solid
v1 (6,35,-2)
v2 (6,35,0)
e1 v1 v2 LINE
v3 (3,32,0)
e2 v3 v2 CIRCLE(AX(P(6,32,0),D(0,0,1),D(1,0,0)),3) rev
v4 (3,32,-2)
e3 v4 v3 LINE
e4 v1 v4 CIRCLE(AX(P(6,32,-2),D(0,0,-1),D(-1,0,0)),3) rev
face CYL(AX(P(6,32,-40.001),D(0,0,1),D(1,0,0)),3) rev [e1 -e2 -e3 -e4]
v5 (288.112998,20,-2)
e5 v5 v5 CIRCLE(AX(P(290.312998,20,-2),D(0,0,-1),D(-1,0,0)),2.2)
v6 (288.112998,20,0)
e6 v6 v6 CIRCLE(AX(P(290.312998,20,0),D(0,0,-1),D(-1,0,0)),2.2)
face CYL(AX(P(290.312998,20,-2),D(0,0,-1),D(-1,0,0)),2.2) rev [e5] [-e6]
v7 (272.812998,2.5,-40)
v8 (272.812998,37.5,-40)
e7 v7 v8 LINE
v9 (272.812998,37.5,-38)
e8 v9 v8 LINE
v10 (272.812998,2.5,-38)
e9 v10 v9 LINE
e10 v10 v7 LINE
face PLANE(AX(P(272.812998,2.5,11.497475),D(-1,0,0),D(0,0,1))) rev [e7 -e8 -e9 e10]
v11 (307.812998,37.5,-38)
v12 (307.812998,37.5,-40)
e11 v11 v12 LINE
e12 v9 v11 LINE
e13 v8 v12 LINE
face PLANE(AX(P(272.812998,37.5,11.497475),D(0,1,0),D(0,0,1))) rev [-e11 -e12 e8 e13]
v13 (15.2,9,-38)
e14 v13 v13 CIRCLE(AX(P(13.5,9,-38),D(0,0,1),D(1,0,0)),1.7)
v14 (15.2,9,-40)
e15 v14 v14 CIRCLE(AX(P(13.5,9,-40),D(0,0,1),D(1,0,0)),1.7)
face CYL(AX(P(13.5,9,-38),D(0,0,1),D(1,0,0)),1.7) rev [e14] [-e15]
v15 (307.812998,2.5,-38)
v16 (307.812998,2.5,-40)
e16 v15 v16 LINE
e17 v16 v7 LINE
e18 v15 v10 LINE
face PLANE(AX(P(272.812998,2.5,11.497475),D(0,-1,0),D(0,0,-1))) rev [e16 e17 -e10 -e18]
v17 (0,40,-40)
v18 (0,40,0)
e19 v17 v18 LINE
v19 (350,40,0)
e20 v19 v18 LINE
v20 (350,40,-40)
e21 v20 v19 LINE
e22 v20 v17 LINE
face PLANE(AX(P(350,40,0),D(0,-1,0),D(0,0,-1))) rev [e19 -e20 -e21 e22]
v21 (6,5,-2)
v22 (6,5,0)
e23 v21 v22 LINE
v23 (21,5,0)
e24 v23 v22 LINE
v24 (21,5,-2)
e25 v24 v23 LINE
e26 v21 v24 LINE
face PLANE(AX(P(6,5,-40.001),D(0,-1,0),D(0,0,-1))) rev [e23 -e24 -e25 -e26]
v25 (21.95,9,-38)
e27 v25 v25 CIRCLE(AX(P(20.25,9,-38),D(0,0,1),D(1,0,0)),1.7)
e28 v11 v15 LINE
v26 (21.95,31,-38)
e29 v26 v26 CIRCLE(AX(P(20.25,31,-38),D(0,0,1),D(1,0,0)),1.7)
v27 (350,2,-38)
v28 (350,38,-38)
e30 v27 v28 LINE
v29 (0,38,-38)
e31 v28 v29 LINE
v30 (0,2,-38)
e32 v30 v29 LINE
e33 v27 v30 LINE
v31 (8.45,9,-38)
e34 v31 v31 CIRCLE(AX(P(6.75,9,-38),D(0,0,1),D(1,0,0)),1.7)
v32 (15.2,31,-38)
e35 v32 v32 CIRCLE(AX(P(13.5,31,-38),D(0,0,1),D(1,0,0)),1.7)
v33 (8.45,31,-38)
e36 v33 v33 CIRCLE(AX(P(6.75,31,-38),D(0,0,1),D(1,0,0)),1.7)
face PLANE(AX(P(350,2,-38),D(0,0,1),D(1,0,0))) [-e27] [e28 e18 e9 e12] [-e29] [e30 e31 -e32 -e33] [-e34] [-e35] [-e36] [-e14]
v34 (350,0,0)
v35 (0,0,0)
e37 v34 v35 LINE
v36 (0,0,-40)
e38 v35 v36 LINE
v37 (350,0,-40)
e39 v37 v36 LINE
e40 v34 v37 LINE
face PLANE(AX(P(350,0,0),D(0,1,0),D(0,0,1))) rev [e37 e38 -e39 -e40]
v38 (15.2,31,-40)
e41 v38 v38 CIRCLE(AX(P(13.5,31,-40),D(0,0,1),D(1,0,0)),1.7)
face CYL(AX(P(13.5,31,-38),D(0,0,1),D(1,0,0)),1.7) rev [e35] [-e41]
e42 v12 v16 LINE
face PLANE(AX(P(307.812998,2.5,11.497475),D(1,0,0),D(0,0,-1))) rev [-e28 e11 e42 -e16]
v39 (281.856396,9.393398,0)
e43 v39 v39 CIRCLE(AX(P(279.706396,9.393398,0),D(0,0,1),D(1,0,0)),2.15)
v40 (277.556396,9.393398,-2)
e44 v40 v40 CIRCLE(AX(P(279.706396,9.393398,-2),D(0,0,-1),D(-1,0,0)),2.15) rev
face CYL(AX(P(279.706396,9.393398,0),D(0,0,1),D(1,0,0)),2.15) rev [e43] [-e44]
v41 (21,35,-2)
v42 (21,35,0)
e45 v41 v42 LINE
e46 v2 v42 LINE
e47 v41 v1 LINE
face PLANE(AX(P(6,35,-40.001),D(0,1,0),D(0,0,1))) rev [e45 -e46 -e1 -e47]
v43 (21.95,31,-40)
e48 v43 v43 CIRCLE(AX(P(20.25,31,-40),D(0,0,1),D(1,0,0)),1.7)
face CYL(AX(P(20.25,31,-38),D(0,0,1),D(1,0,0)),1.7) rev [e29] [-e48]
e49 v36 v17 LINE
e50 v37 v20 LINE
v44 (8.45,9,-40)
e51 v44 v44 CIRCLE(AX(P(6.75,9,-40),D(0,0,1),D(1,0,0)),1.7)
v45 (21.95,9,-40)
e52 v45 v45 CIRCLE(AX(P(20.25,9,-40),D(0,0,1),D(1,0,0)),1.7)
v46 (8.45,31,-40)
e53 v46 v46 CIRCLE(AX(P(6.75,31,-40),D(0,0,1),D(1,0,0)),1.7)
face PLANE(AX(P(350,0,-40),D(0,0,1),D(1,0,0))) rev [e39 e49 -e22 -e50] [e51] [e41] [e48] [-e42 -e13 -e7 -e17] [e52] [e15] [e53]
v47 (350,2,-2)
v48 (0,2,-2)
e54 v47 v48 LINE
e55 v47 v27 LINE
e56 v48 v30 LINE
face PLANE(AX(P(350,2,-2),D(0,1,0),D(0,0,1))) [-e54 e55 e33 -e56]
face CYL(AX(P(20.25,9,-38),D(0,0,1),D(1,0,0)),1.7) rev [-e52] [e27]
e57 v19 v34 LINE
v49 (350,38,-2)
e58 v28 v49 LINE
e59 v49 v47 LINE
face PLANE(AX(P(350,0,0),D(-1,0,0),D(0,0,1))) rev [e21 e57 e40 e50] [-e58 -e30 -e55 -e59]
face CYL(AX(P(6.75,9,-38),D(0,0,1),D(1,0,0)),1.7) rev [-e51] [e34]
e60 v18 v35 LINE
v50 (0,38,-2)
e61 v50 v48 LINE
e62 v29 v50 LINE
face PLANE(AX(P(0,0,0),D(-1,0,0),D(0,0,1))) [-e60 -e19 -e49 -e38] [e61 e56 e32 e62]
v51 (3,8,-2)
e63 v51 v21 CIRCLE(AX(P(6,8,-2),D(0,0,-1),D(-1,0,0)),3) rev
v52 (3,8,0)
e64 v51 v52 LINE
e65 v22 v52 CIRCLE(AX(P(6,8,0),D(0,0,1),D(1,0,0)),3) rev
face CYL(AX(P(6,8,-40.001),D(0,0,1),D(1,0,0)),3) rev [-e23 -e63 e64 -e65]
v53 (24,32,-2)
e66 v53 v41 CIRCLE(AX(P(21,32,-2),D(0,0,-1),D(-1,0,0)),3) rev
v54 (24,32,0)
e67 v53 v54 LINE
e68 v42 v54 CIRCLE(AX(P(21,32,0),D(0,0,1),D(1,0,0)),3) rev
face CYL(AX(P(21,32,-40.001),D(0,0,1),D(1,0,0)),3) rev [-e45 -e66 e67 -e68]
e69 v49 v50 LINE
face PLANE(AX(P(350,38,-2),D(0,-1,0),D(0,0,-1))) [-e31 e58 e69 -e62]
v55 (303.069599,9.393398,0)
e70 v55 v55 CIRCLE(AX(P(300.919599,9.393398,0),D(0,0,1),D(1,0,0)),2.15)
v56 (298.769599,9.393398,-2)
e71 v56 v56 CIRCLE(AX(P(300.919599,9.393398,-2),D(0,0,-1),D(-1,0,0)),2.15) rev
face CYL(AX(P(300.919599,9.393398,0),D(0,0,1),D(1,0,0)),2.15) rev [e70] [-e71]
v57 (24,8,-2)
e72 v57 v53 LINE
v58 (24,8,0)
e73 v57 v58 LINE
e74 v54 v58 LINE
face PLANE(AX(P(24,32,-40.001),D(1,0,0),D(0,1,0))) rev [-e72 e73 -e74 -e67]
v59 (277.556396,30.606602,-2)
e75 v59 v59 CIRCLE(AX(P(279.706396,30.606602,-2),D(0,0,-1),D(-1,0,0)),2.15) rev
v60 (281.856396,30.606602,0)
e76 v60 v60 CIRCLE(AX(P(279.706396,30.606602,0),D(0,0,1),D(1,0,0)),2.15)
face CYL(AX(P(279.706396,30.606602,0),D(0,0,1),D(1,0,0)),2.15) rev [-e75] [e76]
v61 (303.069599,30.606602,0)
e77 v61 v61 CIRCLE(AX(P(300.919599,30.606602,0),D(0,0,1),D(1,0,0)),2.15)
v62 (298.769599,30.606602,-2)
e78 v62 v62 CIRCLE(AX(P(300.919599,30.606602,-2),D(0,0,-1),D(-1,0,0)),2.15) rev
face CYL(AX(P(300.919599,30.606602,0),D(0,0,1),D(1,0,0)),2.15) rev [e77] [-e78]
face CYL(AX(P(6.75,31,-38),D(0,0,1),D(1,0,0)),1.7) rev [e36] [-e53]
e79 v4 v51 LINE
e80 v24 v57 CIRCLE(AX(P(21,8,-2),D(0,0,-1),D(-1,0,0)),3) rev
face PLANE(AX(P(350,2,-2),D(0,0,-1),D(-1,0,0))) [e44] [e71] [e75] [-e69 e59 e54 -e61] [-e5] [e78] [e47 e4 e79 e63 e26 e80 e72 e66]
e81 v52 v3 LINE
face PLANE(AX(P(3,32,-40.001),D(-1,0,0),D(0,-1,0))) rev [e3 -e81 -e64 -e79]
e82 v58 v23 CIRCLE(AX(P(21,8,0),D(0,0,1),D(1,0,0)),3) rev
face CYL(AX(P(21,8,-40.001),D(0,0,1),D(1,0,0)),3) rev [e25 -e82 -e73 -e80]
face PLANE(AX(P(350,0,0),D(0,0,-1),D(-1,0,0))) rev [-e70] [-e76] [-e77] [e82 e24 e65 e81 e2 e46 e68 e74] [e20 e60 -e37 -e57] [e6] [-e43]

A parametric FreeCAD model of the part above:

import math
import FreeCAD as App
import Part
import Sketcher

V = App.Vector
Q = App.Units.Quantity


def add_polygon(sketch, points):
    """Adds a closed chain of lines whose ends are joined by coincident constraints."""
    first, n = sketch.GeometryCount, len(points)
    for a, b in zip(points, points[1:] + points[:1]):
        sketch.addGeometry(Part.LineSegment(App.Vector(*a, 0), App.Vector(*b, 0)), False)
    for i in range(n):
        sketch.addConstraint(Sketcher.Constraint("Coincident", first + i, 2, first + (i + 1) % n, 1))

doc = App.newDocument("Part")
params = doc.addObject("Spreadsheet::Sheet", "Params")
for row, (alias, value) in enumerate([
    ("sketch1_width", "40 mm"),
    ("sketch1_width2", "36 mm"),
    ("pad1_length", "350 mm"),
    ("sketch2_diameter", "4.3 mm"),
    ("hole_diameter", "4.3 mm"),
    ("hole_depth", "2 mm"),
    ("sketch3_width", "35 mm"),
    ("pocket1_length", "2 mm"),
    ("sketch4_diameter", "4.4 mm"),
    ("hole2_diameter", "4.4 mm"),
    ("sketch5_diameter", "3.4 mm"),
    ("hole3_diameter", "3.4 mm"),
    ("hole3_depth", "20 mm"),
    ("sketch6_radius", "3 mm"),
    ("sketch6_width", "15 mm"),
    ("sketch6_height", "24 mm"),
    ("sketch7_radius", "3 mm"),
    ("sketch7_width", "15 mm"),
    ("sketch7_height", "24 mm"),
    ("pocket3_length", "355.541958 mm"),
], start=1):
    params.set(f"A{row}", alias)
    params.set(f"B{row}", "=" + value)
    params.setAlias(f"B{row}", alias)

body = doc.addObject("PartDesign::Body", "Body")

# Sketch on YZ plane
sketch1 = body.newObject("Sketcher::SketchObject", "Sketch")
sketch1.AttachmentSupport = (doc.getObject("YZ_Plane"), [""])
sketch1.MapMode = "FlatFace"
add_polygon(sketch1, [(40, 0), (0, 0), (0, -40), (40, -40)])  # lines 0-3
add_polygon(sketch1, [(2, -38), (2, -2), (38, -2), (38, -38)])  # lines 4-7
sketch1.addConstraint(Sketcher.Constraint("Horizontal", 0))
sketch1.addConstraint(Sketcher.Constraint("Vertical", 1))
sketch1.addConstraint(Sketcher.Constraint("Horizontal", 2))
sketch1.addConstraint(Sketcher.Constraint("Vertical", 3))
sketch1.addConstraint(Sketcher.Constraint("Vertical", 4))
sketch1.addConstraint(Sketcher.Constraint("Horizontal", 5))
sketch1.addConstraint(Sketcher.Constraint("Vertical", 6))
sketch1.addConstraint(Sketcher.Constraint("Horizontal", 7))
sketch1.addConstraint(Sketcher.Constraint("Coincident", 0, 2, -1, 1))
sketch1.addConstraint(Sketcher.Constraint("Equal", 2, 1))
sketch1.addConstraint(Sketcher.Constraint("Equal", 7, 4))
sketch1.addConstraint(Sketcher.Constraint("DistanceX", 0, 2, 0, 1, Q("40 mm")))
sketch1.addConstraint(Sketcher.Constraint("DistanceX", 5, 1, 5, 2, Q("36 mm")))
sketch1.addConstraint(Sketcher.Constraint("DistanceX", -1, 1, 4, 2, Q("2 mm")))
sketch1.addConstraint(Sketcher.Constraint("DistanceY", 4, 2, -1, 1, Q("2 mm")))
sketch1.setExpression("Constraints[19]", "Params.sketch1_width")
sketch1.setExpression("Constraints[20]", "Params.sketch1_width2")
pad1 = body.newObject("PartDesign::Pad", "Pad")
pad1.Profile = sketch1
pad1.setExpression("Length", "Params.pad1_length")

# Sketch on XY plane
sketch2 = body.newObject("Sketcher::SketchObject", "Sketch001")
sketch2.AttachmentSupport = (doc.getObject("XY_Plane"), [""])
sketch2.MapMode = "FlatFace"
sketch2.addGeometry(Part.Circle(V(279.7, 30.6, 0), V(0, 0, 1), 2.1), False)
sketch2.addGeometry(Part.Circle(V(300.9, 30.6, 0), V(0, 0, 1), 2.1), False)
sketch2.addGeometry(Part.Circle(V(300.9, 9.4, 0), V(0, 0, 1), 2.1), False)
sketch2.addGeometry(Part.Circle(V(279.7, 9.4, 0), V(0, 0, 1), 2.1), False)
sketch2.addConstraint(Sketcher.Constraint("Equal", 0, 1))
sketch2.addConstraint(Sketcher.Constraint("Equal", 1, 2))
sketch2.addConstraint(Sketcher.Constraint("Equal", 2, 3))
sketch2.addConstraint(Sketcher.Constraint("Horizontal", 0, 3, 1, 3))
sketch2.addConstraint(Sketcher.Constraint("Horizontal", 2, 3, 3, 3))
sketch2.addConstraint(Sketcher.Constraint("Vertical", 1, 3, 2, 3))
sketch2.addConstraint(Sketcher.Constraint("Vertical", 0, 3, 3, 3))
sketch2.addConstraint(Sketcher.Constraint("Diameter", 0, Q("4.3 mm")))
sketch2.addConstraint(Sketcher.Constraint("DistanceY", -1, 1, 0, 3, Q("30.606602 mm")))
sketch2.addConstraint(Sketcher.Constraint("DistanceX", -1, 1, 1, 3, Q("300.919599 mm")))
sketch2.addConstraint(Sketcher.Constraint("DistanceY", -1, 1, 2, 3, Q("9.393398 mm")))
sketch2.addConstraint(Sketcher.Constraint("DistanceX", -1, 1, 0, 3, Q("279.706396 mm")))
sketch2.setExpression("Constraints[7]", "Params.sketch2_diameter")
doc.recompute()
hole = body.newObject("PartDesign::Hole", "Hole")
hole.Profile = sketch2
hole.ThreadType = "None"
hole.setExpression("Diameter", "Params.hole_diameter")
hole.DepthType = "Dimension"
hole.setExpression("Depth", "Params.hole_depth")
hole.DrillPoint = "Angled"
hole.DrillPointAngle = 118

# Sketch on XY plane
sketch3 = body.newObject("Sketcher::SketchObject", "Sketch002")
sketch3.AttachmentSupport = (doc.getObject("XY_Plane"), [""])
sketch3.MapMode = "FlatFace"
sketch3.AttachmentOffset = App.Placement(V(0, 0, -40), App.Rotation())
add_polygon(sketch3, [(308, 38), (308, 2), (273, 2), (273, 38)])  # lines 0-3
sketch3.addConstraint(Sketcher.Constraint("Vertical", 0))
sketch3.addConstraint(Sketcher.Constraint("Horizontal", 1))
sketch3.addConstraint(Sketcher.Constraint("Vertical", 2))
sketch3.addConstraint(Sketcher.Constraint("Horizontal", 3))
sketch3.addConstraint(Sketcher.Constraint("Equal", 3, 0))
sketch3.addConstraint(Sketcher.Constraint("DistanceX", 1, 2, 1, 1, Q("35 mm")))
sketch3.addConstraint(Sketcher.Constraint("DistanceY", -1, 1, 0, 2, Q("2.5 mm")))
sketch3.addConstraint(Sketcher.Constraint("DistanceX", -1, 1, 0, 2, Q("307.812998 mm")))
sketch3.setExpression("Constraints[9]", "Params.sketch3_width")
pocket1 = body.newObject("PartDesign::Pocket", "Pocket")
pocket1.Profile = sketch3
pocket1.setExpression("Length", "Params.pocket1_length")
pocket1.Reversed = True

# Sketch on XY plane
sketch4 = body.newObject("Sketcher::SketchObject", "Sketch003")
sketch4.AttachmentSupport = (doc.getObject("XY_Plane"), [""])
sketch4.MapMode = "FlatFace"
sketch4.AttachmentOffset = App.Placement(V(0, 0, -2), App.Rotation())
sketch4.addGeometry(Part.Circle(V(290.3, 20, 0), V(0, 0, 1), 2.2), False)
sketch4.addConstraint(Sketcher.Constraint("Diameter", 0, Q("4.4 mm")))
sketch4.addConstraint(Sketcher.Constraint("DistanceY", -1, 1, 0, 3, Q("20 mm")))
sketch4.addConstraint(Sketcher.Constraint("DistanceX", -1, 1, 0, 3, Q("290.312998 mm")))
sketch4.setExpression("Constraints[0]", "Params.sketch4_diameter")
doc.recompute()
hole2 = body.newObject("PartDesign::Hole", "Hole001")
hole2.Profile = sketch4
hole2.ThreadType = "None"
hole2.setExpression("Diameter", "Params.hole2_diameter")
hole2.DepthType = "ThroughAll"
hole2.Reversed = True

# Sketch on XY plane
sketch5 = body.newObject("Sketcher::SketchObject", "Sketch004")
sketch5.AttachmentSupport = (doc.getObject("XY_Plane"), [""])
sketch5.MapMode = "FlatFace"
sketch5.AttachmentOffset = App.Placement(V(0, 0, -38), App.Rotation())
sketch5.addGeometry(Part.Circle(V(6.8, 9, 0), V(0, 0, 1), 1.7), False)
sketch5.addGeometry(Part.Circle(V(20.2, 31, 0), V(0, 0, 1), 1.7), False)
sketch5.addGeometry(Part.Circle(V(13.5, 31, 0), V(0, 0, 1), 1.7), False)
sketch5.addGeometry(Part.Circle(V(6.8, 31, 0), V(0, 0, 1), 1.7), False)
sketch5.addGeometry(Part.Circle(V(20.2, 9, 0), V(0, 0, 1), 1.7), False)
sketch5.addGeometry(Part.Circle(V(13.5, 9, 0), V(0, 0, 1), 1.7), False)
sketch5.addConstraint(Sketcher.Constraint("Equal", 0, 1))
sketch5.addConstraint(Sketcher.Constraint("Equal", 1, 2))
sketch5.addConstraint(Sketcher.Constraint("Equal", 2, 3))
sketch5.addConstraint(Sketcher.Constraint("Equal", 3, 4))
sketch5.addConstraint(Sketcher.Constraint("Equal", 4, 5))
sketch5.addConstraint(Sketcher.Constraint("Horizontal", 1, 3, 2, 3))
sketch5.addConstraint(Sketcher.Constraint("Horizontal", 2, 3, 3, 3))
sketch5.addConstraint(Sketcher.Constraint("Horizontal", 0, 3, 4, 3))
sketch5.addConstraint(Sketcher.Constraint("Horizontal", 4, 3, 5, 3))
sketch5.addConstraint(Sketcher.Constraint("Vertical", 0, 3, 3, 3))
sketch5.addConstraint(Sketcher.Constraint("Vertical", 1, 3, 4, 3))
sketch5.addConstraint(Sketcher.Constraint("Vertical", 2, 3, 5, 3))
sketch5.addConstraint(Sketcher.Constraint("Diameter", 0, Q("3.4 mm")))
sketch5.addConstraint(Sketcher.Constraint("DistanceY", -1, 1, 0, 3, Q("9 mm")))
sketch5.addConstraint(Sketcher.Constraint("DistanceY", -1, 1, 1, 3, Q("31 mm")))
sketch5.addConstraint(Sketcher.Constraint("DistanceX", -1, 1, 2, 3, Q("13.5 mm")))
sketch5.addConstraint(Sketcher.Constraint("DistanceX", 0, 3, 1, 3, Q("13.5 mm")))
sketch5.addConstraint(Sketcher.Constraint("DistanceX", -1, 1, 0, 3, Q("6.75 mm")))
sketch5.setExpression("Constraints[12]", "Params.sketch5_diameter")
doc.recompute()
hole3 = body.newObject("PartDesign::Hole", "Hole002")
hole3.Profile = sketch5
hole3.ThreadType = "None"
hole3.setExpression("Diameter", "Params.hole3_diameter")
hole3.DepthType = "Dimension"
hole3.setExpression("Depth", "Params.hole3_depth")
hole3.DrillPoint = "Angled"
hole3.DrillPointAngle = 118

# Sketch on XY plane
sketch6 = body.newObject("Sketcher::SketchObject", "Sketch005")
sketch6.AttachmentSupport = (doc.getObject("XY_Plane"), [""])
sketch6.MapMode = "FlatFace"
sketch6.addGeometry(Part.LineSegment(V(21, 35, 0), V(6, 35, 0)), False)
sketch6.addGeometry(Part.ArcOfCircle(Part.Circle(V(6, 32, 0), V(0, 0, 1), 3), math.radians(90), math.radians(180)), False)
sketch6.addGeometry(Part.LineSegment(V(3, 32, 0), V(3, 8, 0)), False)
sketch6.addGeometry(Part.ArcOfCircle(Part.Circle(V(6, 8, 0), V(0, 0, 1), 3), math.radians(180), math.radians(270)), False)
sketch6.addGeometry(Part.LineSegment(V(6, 5, 0), V(21, 5, 0)), False)
sketch6.addGeometry(Part.ArcOfCircle(Part.Circle(V(21, 8, 0), V(0, 0, 1), 3), math.radians(-90), math.radians(0)), False)
sketch6.addGeometry(Part.LineSegment(V(24, 8, 0), V(24, 32, 0)), False)
sketch6.addGeometry(Part.ArcOfCircle(Part.Circle(V(21, 32, 0), V(0, 0, 1), 3), math.radians(0), math.radians(90)), False)
sketch6.addConstraint(Sketcher.Constraint("Tangent", 0, 2, 1, 1))
sketch6.addConstraint(Sketcher.Constraint("Tangent", 1, 2, 2, 1))
sketch6.addConstraint(Sketcher.Constraint("Tangent", 2, 2, 3, 1))
sketch6.addConstraint(Sketcher.Constraint("Tangent", 3, 2, 4, 1))
sketch6.addConstraint(Sketcher.Constraint("Tangent", 4, 2, 5, 1))
sketch6.addConstraint(Sketcher.Constraint("Tangent", 5, 2, 6, 1))
sketch6.addConstraint(Sketcher.Constraint("Tangent", 6, 2, 7, 1))
sketch6.addConstraint(Sketcher.Constraint("Tangent", 7, 2, 0, 1))
sketch6.addConstraint(Sketcher.Constraint("Horizontal", 0))
sketch6.addConstraint(Sketcher.Constraint("Vertical", 2))
sketch6.addConstraint(Sketcher.Constraint("Horizontal", 4))
sketch6.addConstraint(Sketcher.Constraint("Vertical", 6))
sketch6.addConstraint(Sketcher.Constraint("Equal", 1, 3))
sketch6.addConstraint(Sketcher.Constraint("Equal", 3, 5))
sketch6.addConstraint(Sketcher.Constraint("Equal", 5, 7))
sketch6.addConstraint(Sketcher.Constraint("Radius", 1, Q("3 mm")))
sketch6.addConstraint(Sketcher.Constraint("DistanceX", 0, 2, 0, 1, Q("15 mm")))
sketch6.addConstraint(Sketcher.Constraint("DistanceY", 2, 2, 2, 1, Q("24 mm")))
sketch6.addConstraint(Sketcher.Constraint("DistanceX", -1, 1, 1, 3, Q("6 mm")))
sketch6.addConstraint(Sketcher.Constraint("DistanceY", -1, 1, 1, 3, Q("32 mm")))
sketch6.setExpression("Constraints[15]", "Params.sketch6_radius")
sketch6.setExpression("Constraints[16]", "Params.sketch6_width")
sketch6.setExpression("Constraints[17]", "Params.sketch6_height")
pocket2 = body.newObject("PartDesign::Pocket", "Pocket001")
pocket2.Profile = sketch6
pocket2.Type = "UpToFirst"

# Sketch on XY plane
sketch7 = body.newObject("Sketcher::SketchObject", "Sketch006")
sketch7.AttachmentSupport = (doc.getObject("XY_Plane"), [""])
sketch7.MapMode = "FlatFace"
sketch7.addGeometry(Part.LineSegment(V(21, 35, 0), V(6, 35, 0)), False)
sketch7.addGeometry(Part.ArcOfCircle(Part.Circle(V(6, 32, 0), V(0, 0, 1), 3), math.radians(90), math.radians(180)), False)
sketch7.addGeometry(Part.LineSegment(V(3, 32, 0), V(3, 8, 0)), False)
sketch7.addGeometry(Part.ArcOfCircle(Part.Circle(V(6, 8, 0), V(0, 0, 1), 3), math.radians(180), math.radians(270)), False)
sketch7.addGeometry(Part.LineSegment(V(6, 5, 0), V(21, 5, 0)), False)
sketch7.addGeometry(Part.ArcOfCircle(Part.Circle(V(21, 8, 0), V(0, 0, 1), 3), math.radians(-90), math.radians(0)), False)
sketch7.addGeometry(Part.LineSegment(V(24, 8, 0), V(24, 32, 0)), False)
sketch7.addGeometry(Part.ArcOfCircle(Part.Circle(V(21, 32, 0), V(0, 0, 1), 3), math.radians(0), math.radians(90)), False)
sketch7.addConstraint(Sketcher.Constraint("Tangent", 0, 2, 1, 1))
sketch7.addConstraint(Sketcher.Constraint("Tangent", 1, 2, 2, 1))
sketch7.addConstraint(Sketcher.Constraint("Tangent", 2, 2, 3, 1))
sketch7.addConstraint(Sketcher.Constraint("Tangent", 3, 2, 4, 1))
sketch7.addConstraint(Sketcher.Constraint("Tangent", 4, 2, 5, 1))
sketch7.addConstraint(Sketcher.Constraint("Tangent", 5, 2, 6, 1))
sketch7.addConstraint(Sketcher.Constraint("Tangent", 6, 2, 7, 1))
sketch7.addConstraint(Sketcher.Constraint("Tangent", 7, 2, 0, 1))
sketch7.addConstraint(Sketcher.Constraint("Horizontal", 0))
sketch7.addConstraint(Sketcher.Constraint("Vertical", 2))
sketch7.addConstraint(Sketcher.Constraint("Horizontal", 4))
sketch7.addConstraint(Sketcher.Constraint("Vertical", 6))
sketch7.addConstraint(Sketcher.Constraint("Equal", 1, 3))
sketch7.addConstraint(Sketcher.Constraint("Equal", 3, 5))
sketch7.addConstraint(Sketcher.Constraint("Equal", 5, 7))
sketch7.addConstraint(Sketcher.Constraint("Radius", 1, Q("3 mm")))
sketch7.addConstraint(Sketcher.Constraint("DistanceX", 0, 2, 0, 1, Q("15 mm")))
sketch7.addConstraint(Sketcher.Constraint("DistanceY", 2, 2, 2, 1, Q("24 mm")))
sketch7.addConstraint(Sketcher.Constraint("DistanceX", -1, 1, 1, 3, Q("6 mm")))
sketch7.addConstraint(Sketcher.Constraint("DistanceY", -1, 1, 1, 3, Q("32 mm")))
sketch7.setExpression("Constraints[15]", "Params.sketch7_radius")
sketch7.setExpression("Constraints[16]", "Params.sketch7_width")
sketch7.setExpression("Constraints[17]", "Params.sketch7_height")
pocket3 = body.newObject("PartDesign::Pocket", "Pocket002")
pocket3.Profile = sketch7
pocket3.setExpression("Length", "Params.pocket3_length")
pocket3.Reversed = True

doc.recompute()
